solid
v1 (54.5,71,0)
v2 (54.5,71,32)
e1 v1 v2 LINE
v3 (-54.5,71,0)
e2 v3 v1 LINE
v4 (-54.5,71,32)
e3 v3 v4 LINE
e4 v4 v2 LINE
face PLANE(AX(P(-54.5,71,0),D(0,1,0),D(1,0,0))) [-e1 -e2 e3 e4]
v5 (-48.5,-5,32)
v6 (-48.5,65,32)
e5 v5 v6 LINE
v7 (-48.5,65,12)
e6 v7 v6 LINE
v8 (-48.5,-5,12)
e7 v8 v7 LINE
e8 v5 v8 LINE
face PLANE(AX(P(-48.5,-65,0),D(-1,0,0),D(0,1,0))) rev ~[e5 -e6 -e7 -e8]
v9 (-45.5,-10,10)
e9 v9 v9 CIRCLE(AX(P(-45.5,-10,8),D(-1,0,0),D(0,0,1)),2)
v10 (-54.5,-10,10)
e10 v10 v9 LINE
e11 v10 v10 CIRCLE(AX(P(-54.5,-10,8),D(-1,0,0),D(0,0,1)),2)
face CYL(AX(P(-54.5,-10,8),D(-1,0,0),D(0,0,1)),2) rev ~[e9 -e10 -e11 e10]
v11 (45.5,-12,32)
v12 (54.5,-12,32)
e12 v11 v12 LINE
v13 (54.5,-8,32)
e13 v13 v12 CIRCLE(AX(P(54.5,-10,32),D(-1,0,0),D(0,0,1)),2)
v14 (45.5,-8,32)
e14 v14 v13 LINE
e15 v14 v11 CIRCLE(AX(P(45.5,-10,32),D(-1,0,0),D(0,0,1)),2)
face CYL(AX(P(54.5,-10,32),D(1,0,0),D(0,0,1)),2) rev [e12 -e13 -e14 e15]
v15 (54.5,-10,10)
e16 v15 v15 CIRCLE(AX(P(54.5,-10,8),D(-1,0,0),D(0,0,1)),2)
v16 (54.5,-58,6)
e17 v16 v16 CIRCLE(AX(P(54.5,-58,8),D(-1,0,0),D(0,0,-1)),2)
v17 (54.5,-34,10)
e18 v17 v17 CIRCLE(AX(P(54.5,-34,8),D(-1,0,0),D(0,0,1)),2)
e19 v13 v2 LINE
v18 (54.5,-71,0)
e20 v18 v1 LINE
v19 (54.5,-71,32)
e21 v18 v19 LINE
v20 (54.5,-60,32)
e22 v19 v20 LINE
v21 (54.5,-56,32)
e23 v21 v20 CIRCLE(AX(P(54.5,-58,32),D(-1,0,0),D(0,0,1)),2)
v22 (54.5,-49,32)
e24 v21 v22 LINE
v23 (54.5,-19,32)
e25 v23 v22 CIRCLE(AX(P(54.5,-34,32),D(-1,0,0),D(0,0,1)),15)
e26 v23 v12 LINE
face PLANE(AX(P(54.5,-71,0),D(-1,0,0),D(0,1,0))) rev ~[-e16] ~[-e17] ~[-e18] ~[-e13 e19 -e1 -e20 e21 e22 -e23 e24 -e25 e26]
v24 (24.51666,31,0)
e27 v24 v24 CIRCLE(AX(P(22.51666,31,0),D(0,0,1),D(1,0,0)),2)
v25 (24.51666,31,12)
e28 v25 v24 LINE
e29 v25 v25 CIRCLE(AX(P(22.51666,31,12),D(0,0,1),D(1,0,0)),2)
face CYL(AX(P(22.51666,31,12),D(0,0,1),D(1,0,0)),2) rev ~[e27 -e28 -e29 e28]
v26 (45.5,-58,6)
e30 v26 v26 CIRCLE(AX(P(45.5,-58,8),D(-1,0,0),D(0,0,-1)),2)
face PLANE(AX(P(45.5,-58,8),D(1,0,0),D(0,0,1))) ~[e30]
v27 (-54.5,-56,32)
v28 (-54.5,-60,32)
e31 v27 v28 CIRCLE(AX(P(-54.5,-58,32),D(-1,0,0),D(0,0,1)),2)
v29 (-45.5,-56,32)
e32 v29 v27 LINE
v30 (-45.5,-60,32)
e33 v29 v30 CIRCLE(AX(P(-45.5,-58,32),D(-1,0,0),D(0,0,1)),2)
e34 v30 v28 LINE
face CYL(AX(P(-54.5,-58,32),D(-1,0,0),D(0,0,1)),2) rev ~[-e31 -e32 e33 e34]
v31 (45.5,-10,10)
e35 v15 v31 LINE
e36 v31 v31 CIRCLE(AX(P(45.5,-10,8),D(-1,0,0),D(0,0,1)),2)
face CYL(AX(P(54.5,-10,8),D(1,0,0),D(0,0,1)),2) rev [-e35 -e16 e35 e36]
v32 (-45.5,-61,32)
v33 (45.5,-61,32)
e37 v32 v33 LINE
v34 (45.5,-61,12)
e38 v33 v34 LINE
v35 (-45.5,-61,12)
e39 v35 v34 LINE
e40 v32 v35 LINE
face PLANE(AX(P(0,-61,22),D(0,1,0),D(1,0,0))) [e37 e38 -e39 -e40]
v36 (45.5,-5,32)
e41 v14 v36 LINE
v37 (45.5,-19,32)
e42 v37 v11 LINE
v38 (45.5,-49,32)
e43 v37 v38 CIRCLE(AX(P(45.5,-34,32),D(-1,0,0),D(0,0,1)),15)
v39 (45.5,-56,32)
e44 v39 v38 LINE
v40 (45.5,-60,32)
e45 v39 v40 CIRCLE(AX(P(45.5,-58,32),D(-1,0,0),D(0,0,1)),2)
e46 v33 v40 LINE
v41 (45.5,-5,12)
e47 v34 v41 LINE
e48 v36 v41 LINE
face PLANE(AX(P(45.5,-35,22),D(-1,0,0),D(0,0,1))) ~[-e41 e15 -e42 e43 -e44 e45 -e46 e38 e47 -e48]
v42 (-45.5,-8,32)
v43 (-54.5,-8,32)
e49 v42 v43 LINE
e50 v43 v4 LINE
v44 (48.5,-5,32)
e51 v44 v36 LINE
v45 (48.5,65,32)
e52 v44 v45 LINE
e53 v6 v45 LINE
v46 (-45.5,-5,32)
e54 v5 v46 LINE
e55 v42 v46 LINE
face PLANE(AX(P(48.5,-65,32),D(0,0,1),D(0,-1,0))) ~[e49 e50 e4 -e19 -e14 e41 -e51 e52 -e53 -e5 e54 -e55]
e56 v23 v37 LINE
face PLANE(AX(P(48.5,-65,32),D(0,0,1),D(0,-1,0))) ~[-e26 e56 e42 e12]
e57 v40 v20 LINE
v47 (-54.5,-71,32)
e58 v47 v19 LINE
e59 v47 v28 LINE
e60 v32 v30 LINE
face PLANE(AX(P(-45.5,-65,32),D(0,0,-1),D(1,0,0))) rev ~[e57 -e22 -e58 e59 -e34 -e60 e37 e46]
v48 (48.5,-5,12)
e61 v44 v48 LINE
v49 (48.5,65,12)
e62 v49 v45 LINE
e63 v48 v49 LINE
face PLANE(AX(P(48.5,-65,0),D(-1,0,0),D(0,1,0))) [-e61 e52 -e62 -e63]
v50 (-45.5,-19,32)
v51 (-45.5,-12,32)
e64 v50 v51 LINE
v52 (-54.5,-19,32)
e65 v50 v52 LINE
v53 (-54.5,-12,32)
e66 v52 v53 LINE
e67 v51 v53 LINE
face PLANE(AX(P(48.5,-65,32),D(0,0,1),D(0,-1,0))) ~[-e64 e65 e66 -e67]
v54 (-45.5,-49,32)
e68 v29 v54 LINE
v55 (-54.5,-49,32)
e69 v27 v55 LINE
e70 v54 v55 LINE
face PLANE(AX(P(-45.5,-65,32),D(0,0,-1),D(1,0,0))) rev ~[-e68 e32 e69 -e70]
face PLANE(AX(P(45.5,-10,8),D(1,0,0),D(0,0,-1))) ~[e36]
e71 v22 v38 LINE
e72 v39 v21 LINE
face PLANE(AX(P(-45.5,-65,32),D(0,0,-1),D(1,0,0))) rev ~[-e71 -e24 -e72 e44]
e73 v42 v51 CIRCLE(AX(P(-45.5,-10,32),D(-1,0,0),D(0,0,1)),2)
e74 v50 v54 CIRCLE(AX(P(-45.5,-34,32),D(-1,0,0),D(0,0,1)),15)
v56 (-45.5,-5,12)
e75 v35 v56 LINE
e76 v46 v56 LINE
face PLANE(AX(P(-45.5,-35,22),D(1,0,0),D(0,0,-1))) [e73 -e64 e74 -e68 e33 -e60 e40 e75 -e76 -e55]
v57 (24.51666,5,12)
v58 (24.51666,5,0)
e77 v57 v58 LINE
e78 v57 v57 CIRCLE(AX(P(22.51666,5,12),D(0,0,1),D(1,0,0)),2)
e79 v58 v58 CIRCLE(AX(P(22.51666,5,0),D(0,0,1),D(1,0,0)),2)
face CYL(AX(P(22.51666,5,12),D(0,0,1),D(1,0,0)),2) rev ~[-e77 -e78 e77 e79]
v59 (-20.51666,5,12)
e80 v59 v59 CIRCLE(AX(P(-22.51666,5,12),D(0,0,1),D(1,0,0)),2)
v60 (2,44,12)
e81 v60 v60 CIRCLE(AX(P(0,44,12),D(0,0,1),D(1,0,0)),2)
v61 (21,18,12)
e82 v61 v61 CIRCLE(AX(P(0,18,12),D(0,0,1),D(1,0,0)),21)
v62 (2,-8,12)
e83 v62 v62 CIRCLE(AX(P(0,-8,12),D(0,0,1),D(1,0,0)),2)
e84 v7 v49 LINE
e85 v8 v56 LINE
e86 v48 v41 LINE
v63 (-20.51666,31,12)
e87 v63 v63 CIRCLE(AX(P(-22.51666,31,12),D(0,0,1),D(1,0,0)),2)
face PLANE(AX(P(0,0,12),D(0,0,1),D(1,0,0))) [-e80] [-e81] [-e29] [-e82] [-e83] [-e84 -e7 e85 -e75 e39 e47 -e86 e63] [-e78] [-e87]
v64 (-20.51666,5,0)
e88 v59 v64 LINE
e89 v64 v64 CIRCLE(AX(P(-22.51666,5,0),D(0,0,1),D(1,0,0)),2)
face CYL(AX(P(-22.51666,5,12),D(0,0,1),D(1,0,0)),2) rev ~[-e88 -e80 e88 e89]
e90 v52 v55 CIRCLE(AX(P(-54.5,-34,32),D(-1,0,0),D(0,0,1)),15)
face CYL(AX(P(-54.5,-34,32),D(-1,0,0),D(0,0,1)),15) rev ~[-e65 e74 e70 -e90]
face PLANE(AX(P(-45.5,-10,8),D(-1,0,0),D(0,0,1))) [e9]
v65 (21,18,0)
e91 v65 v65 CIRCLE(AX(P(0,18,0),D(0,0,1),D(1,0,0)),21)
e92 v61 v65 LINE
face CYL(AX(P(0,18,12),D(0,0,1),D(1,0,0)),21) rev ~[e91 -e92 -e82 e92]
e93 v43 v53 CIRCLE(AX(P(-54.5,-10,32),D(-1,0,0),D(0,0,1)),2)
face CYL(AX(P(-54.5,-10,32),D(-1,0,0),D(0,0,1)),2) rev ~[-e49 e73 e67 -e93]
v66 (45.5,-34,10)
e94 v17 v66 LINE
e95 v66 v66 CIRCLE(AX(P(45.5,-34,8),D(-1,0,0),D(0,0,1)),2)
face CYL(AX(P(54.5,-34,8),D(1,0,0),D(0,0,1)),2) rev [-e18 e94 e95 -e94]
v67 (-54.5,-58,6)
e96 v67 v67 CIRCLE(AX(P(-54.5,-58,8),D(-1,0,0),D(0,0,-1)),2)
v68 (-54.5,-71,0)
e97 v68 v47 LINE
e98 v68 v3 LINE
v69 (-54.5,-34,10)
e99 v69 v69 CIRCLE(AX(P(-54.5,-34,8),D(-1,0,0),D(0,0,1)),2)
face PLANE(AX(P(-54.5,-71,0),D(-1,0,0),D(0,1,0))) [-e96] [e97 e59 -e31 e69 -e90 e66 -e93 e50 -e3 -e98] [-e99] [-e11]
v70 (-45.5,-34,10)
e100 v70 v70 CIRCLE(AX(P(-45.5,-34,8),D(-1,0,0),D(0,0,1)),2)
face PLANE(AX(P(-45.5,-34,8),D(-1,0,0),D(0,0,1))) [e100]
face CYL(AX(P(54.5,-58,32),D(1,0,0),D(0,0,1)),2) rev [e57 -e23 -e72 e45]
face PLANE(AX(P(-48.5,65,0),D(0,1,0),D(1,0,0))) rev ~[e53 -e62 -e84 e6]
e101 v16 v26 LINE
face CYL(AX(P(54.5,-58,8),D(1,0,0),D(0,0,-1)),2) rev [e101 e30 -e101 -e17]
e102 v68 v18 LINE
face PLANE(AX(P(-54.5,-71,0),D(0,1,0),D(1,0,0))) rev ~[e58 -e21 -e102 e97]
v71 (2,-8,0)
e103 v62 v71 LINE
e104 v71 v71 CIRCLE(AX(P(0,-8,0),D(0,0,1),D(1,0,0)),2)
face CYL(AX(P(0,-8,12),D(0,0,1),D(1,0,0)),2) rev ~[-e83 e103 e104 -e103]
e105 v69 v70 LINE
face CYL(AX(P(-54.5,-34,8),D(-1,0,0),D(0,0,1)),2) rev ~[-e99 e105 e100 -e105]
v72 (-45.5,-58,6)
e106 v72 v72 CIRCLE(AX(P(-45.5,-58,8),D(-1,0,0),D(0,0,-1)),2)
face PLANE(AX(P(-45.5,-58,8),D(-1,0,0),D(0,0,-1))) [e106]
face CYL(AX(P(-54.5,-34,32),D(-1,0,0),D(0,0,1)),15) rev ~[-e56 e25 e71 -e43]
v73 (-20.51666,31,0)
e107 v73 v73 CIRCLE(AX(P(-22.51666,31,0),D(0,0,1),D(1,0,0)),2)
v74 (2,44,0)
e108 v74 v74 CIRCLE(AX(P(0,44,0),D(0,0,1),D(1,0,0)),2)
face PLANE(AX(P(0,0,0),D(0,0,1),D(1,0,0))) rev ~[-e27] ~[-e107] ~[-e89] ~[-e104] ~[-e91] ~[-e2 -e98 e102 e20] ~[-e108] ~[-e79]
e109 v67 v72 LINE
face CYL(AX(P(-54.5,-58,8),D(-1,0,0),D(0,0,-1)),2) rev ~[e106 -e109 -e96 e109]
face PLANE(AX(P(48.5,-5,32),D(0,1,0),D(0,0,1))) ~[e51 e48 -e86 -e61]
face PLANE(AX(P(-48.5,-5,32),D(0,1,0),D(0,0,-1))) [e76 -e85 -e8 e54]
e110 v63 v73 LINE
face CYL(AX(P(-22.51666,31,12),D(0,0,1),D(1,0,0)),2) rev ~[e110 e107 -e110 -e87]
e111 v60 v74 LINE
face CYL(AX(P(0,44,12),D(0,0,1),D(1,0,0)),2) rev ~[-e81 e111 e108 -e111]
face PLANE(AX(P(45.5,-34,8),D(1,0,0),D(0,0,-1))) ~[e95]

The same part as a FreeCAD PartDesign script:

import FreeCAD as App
import Part
import Sketcher


def add_polygon(sketch, points):
    """Adds a closed chain of lines whose ends are joined by coincident constraints."""
    first, n = sketch.GeometryCount, len(points)
    for a, b in zip(points, points[1:] + points[:1]):
        sketch.addGeometry(Part.LineSegment(App.Vector(*a, 0), App.Vector(*b, 0)), False)
    for i in range(n):
        sketch.addConstraint(Sketcher.Constraint("Coincident", first + i, 2, first + (i + 1) % n, 1))

doc = App.newDocument("Part")
body = doc.addObject("PartDesign::Body", "Body")

sketch1 = body.newObject("Sketcher::SketchObject", "Sketch")
sketch1.AttachmentSupport = (doc.getObject("XY_Plane"), [""])
sketch1.MapMode = "FlatFace"
add_polygon(sketch1, [(-48, 65), (-48, -65), (48, -65), (48, 65)])
sketch1.addConstraint([
    Sketcher.Constraint("Vertical", 0),
    Sketcher.Constraint("Horizontal", 1),
    Sketcher.Constraint("Vertical", 2),
    Sketcher.Constraint("Horizontal", 3),
    Sketcher.Constraint("Symmetric", 0, 2, 2, 2, -1, 1),
    Sketcher.Constraint("DistanceX", 1, 1, 1, 2, 97.0),
    Sketcher.Constraint("DistanceY", 0, 2, 0, 1, 130.0),
])
pad1 = body.newObject("PartDesign::Pad", "Pad")
pad1.Profile = sketch1
pad1.Length = 12

sketch2 = body.newObject("Sketcher::SketchObject", "Sketch001")
sketch2.AttachmentSupport = (doc.getObject("XY_Plane"), [""])
sketch2.MapMode = "FlatFace"
sketch2.AttachmentOffset = App.Placement(App.Vector(0, 0, 12), App.Rotation())
sketch2.addGeometry([
    Part.Circle(App.Vector(0, 18, 0), App.Vector(0, 0, 1), 21),
    Part.Circle(App.Vector(0, 44, 0), App.Vector(0, 0, 1), 2),
    Part.Circle(App.Vector(22.5, 31, 0), App.Vector(0, 0, 1), 2),
    Part.Circle(App.Vector(22.5, 5, 0), App.Vector(0, 0, 1), 2),
    Part.Circle(App.Vector(0, -8, 0), App.Vector(0, 0, 1), 2),
    Part.Circle(App.Vector(-22.5, 5, 0), App.Vector(0, 0, 1), 2),
    Part.Circle(App.Vector(-22.5, 31, 0), App.Vector(0, 0, 1), 2),
], False)
sketch2.addConstraint([
    Sketcher.Constraint("Equal", 1, 2),
    Sketcher.Constraint("Equal", 2, 3),
    Sketcher.Constraint("Equal", 3, 4),
    Sketcher.Constraint("Equal", 4, 5),
    Sketcher.Constraint("Equal", 5, 6),
    Sketcher.Constraint("Symmetric", 3, 3, 5, 3, -2),
    Sketcher.Constraint("Symmetric", 2, 3, 6, 3, -2),
    Sketcher.Constraint("PointOnObject", 0, 3, -2),
    Sketcher.Constraint("PointOnObject", 1, 3, -2),
    Sketcher.Constraint("PointOnObject", 4, 3, -2),
    Sketcher.Constraint("Vertical", 2, 3, 3, 3),
    Sketcher.Constraint("Diameter", 0, 42.0),
    Sketcher.Constraint("Diameter", 1, 4.0),
    Sketcher.Constraint("DistanceY", -1, 1, 0, 3, 18.0),
    Sketcher.Constraint("DistanceY", -1, 1, 1, 3, 44.0),
    Sketcher.Constraint("DistanceY", -1, 1, 2, 3, 31.0),
    Sketcher.Constraint("DistanceY", -1, 1, 3, 3, 5.0),
    Sketcher.Constraint("DistanceY", 4, 3, -1, 1, 8.0),
    Sketcher.Constraint("DistanceX", -1, 1, 2, 3, 22.51666),
])
pocket1 = body.newObject("PartDesign::Pocket", "Pocket")
pocket1.Profile = sketch2
pocket1.Length = 12

sketch3 = body.newObject("Sketcher::SketchObject", "Sketch002")
sketch3.AttachmentSupport = (doc.getObject("XY_Plane"), [""])
sketch3.MapMode = "FlatFace"
add_polygon(sketch3, [(-54, 71), (-54, -71), (54, -71), (54, 71)])
add_polygon(sketch3, [(48, -65), (-48, -65), (-48, 65), (48, 65)])
sketch3.addConstraint([
    Sketcher.Constraint("Vertical", 0),
    Sketcher.Constraint("Horizontal", 1),
    Sketcher.Constraint("Vertical", 2),
    Sketcher.Constraint("Horizontal", 3),
    Sketcher.Constraint("Horizontal", 4),
    Sketcher.Constraint("Vertical", 5),
    Sketcher.Constraint("Horizontal", 6),
    Sketcher.Constraint("Vertical", 7),
    Sketcher.Constraint("Symmetric", 0, 2, 2, 2, -1, 1),
    Sketcher.Constraint("Symmetric", 4, 2, 6, 2, -1, 1),
    Sketcher.Constraint("DistanceX", 1, 1, 1, 2, 109.0),
    Sketcher.Constraint("DistanceX", 4, 2, 4, 1, 97.0),
    Sketcher.Constraint("DistanceY", 0, 2, 0, 1, 142.0),
    Sketcher.Constraint("DistanceY", 5, 1, 5, 2, 130.0),
])
pad2 = body.newObject("PartDesign::Pad", "Pad001")
pad2.Profile = sketch3
pad2.Length = 32

sketch4 = body.newObject("Sketcher::SketchObject", "Sketch003")
sketch4.AttachmentSupport = (doc.getObject("YZ_Plane"), [""])
sketch4.MapMode = "FlatFace"
sketch4.AttachmentOffset = App.Placement(App.Vector(0, 0, -48.5), App.Rotation())
add_polygon(sketch4, [(-5, 32), (-65, 32), (-65, 12), (-5, 12)])
sketch4.addConstraint([
    Sketcher.Constraint("Horizontal", 0),
    Sketcher.Constraint("Vertical", 1),
    Sketcher.Constraint("Horizontal", 2),
    Sketcher.Constraint("Vertical", 3),
    Sketcher.Constraint("DistanceX", 0, 2, 0, 1, 60.0),
    Sketcher.Constraint("DistanceY", 1, 2, 1, 1, 20.0),
    Sketcher.Constraint("DistanceX", 0, 2, -1, 1, 65.0),
    Sketcher.Constraint("DistanceY", -1, 1, 0, 2, 32.0),
])
pad3 = body.newObject("PartDesign::Pad", "Pad002")
pad3.Profile = sketch4
pad3.Length = 3
doc.recompute()

mirrored = body.newObject("PartDesign::Mirrored", "Mirrored")
mirrored.Originals = [pad3]
mirrored.MirrorPlane = (doc.getObject("YZ_Plane"), [""])
body.Tip = mirrored

sketch5 = body.newObject("Sketcher::SketchObject", "Sketch004")
sketch5.AttachmentSupport = (doc.getObject("YZ_Plane"), [""])
sketch5.MapMode = "FlatFace"
sketch5.AttachmentOffset = App.Placement(App.Vector(0, 0, -54.5), App.Rotation())
sketch5.addGeometry(Part.Circle(App.Vector(-34, 32, 0), App.Vector(0, 0, 1), 15), False)
sketch5.addConstraint([
    Sketcher.Constraint("Diameter", 0, 30.0),
    Sketcher.Constraint("DistanceX", 0, 3, -1, 1, 34.0),
    Sketcher.Constraint("DistanceY", -1, 1, 0, 3, 32.0),
])
pocket2 = body.newObject("PartDesign::Pocket", "Pocket001")
pocket2.Profile = sketch5
pocket2.Type = "ThroughAll"
pocket2.Reversed = True

sketch6 = body.newObject("Sketcher::SketchObject", "Sketch005")
sketch6.AttachmentSupport = (doc.getObject("XZ_Plane"), [""])
sketch6.MapMode = "FlatFace"
sketch6.AttachmentOffset = App.Placement(App.Vector(0, 0, 65), App.Rotation())
add_polygon(sketch6, [(-46, 12), (-46, 32), (46, 32), (46, 12)])
sketch6.addConstraint([
    Sketcher.Constraint("Vertical", 0),
    Sketcher.Constraint("Horizontal", 1),
    Sketcher.Constraint("Vertical", 2),
    Sketcher.Constraint("Horizontal", 3),
    Sketcher.Constraint("DistanceX", 1, 1, 1, 2, 91.0),
    Sketcher.Constraint("DistanceY", 0, 1, 0, 2, 20.0),
    Sketcher.Constraint("DistanceY", -1, 1, 0, 2, 32.0),
    Sketcher.Constraint("DistanceX", 0, 2, -1, 1, 45.5),
])
pad4 = body.newObject("PartDesign::Pad", "Pad003")
pad4.Profile = sketch6
pad4.Length = 4
pad4.Reversed = True

sketch7 = body.newObject("Sketcher::SketchObject", "Sketch006")
sketch7.AttachmentSupport = (doc.getObject("YZ_Plane"), [""])
sketch7.MapMode = "FlatFace"
sketch7.AttachmentOffset = App.Placement(App.Vector(0, 0, -54.5), App.Rotation())
sketch7.addGeometry([
    Part.Circle(App.Vector(-10, 32, 0), App.Vector(0, 0, 1), 2),
    Part.Circle(App.Vector(-10, 8, 0), App.Vector(0, 0, 1), 2),
    Part.Circle(App.Vector(-10, 56, 0), App.Vector(0, 0, 1), 2),
    Part.Circle(App.Vector(-58, 56, 0), App.Vector(0, 0, 1), 2),
    Part.Circle(App.Vector(-58, 32, 0), App.Vector(0, 0, 1), 2),
    Part.Circle(App.Vector(-58, 8, 0), App.Vector(0, 0, 1), 2),
    Part.Circle(App.Vector(-34, 8, 0), App.Vector(0, 0, 1), 2),
], False)
sketch7.addConstraint([
    Sketcher.Constraint("Equal", 0, 1),
    Sketcher.Constraint("Equal", 1, 2),
    Sketcher.Constraint("Equal", 2, 3),
    Sketcher.Constraint("Equal", 3, 4),
    Sketcher.Constraint("Equal", 4, 5),
    Sketcher.Constraint("Equal", 5, 6),
    Sketcher.Constraint("Horizontal", 2, 3, 3, 3),
    Sketcher.Constraint("Horizontal", 0, 3, 4, 3),
    Sketcher.Constraint("Horizontal", 1, 3, 5, 3),
    Sketcher.Constraint("Horizontal", 5, 3, 6, 3),
    Sketcher.Constraint("Vertical", 0, 3, 1, 3),
    Sketcher.Constraint("Vertical", 1, 3, 2, 3),
    Sketcher.Constraint("Vertical", 3, 3, 4, 3),
    Sketcher.Constraint("Vertical", 4, 3, 5, 3),
    Sketcher.Constraint("Diameter", 0, 4.0),
    Sketcher.Constraint("DistanceX", 0, 3, -1, 1, 10.0),
    Sketcher.Constraint("DistanceY", -1, 1, 0, 3, 32.0),
    Sketcher.Constraint("DistanceY", -1, 1, 1, 3, 8.0),
    Sketcher.Constraint("DistanceY", -1, 1, 2, 3, 56.0),
    Sketcher.Constraint("DistanceX", 3, 3, -1, 1, 58.0),
    Sketcher.Constraint("DistanceX", 6, 3, -1, 1, 34.0),
])
pocket3 = body.newObject("PartDesign::Pocket", "Pocket002")
pocket3.Profile = sketch7
pocket3.Length = 9
pocket3.Reversed = True
doc.recompute()

mirrored2 = body.newObject("PartDesign::Mirrored", "Mirrored001")
mirrored2.Originals = [pocket3]
mirrored2.MirrorPlane = (doc.getObject("YZ_Plane"), [""])
body.Tip = mirrored2

doc.recompute()
